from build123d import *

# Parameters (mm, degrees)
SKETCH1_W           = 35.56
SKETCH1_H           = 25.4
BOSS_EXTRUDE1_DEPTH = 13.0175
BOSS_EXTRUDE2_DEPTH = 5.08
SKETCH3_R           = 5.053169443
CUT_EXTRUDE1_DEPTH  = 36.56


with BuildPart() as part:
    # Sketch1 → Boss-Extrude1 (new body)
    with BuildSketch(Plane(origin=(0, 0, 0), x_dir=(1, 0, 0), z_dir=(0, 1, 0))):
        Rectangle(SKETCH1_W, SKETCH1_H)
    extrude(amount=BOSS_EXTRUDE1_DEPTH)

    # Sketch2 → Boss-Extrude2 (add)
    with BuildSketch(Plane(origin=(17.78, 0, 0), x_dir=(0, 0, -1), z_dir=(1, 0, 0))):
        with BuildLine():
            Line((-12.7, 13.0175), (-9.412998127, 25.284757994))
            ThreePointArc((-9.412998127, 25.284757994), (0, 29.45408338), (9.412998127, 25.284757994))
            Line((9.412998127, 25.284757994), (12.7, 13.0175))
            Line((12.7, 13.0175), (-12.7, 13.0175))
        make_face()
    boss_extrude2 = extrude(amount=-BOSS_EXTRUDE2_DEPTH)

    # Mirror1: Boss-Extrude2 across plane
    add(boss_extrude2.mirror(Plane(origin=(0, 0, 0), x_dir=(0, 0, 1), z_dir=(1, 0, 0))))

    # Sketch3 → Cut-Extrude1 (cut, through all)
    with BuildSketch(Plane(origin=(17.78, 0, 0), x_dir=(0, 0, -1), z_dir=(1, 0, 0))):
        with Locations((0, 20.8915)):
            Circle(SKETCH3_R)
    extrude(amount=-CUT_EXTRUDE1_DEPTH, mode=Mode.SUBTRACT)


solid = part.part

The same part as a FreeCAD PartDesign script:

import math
import FreeCAD as App
import Part
import Sketcher

V = App.Vector
Q = App.Units.Quantity

doc = App.newDocument("Part")
body = doc.addObject("PartDesign::Body", "Body")

# Sketch on XZ plane
sketch1 = body.newObject("Sketcher::SketchObject", "Sketch")
sketch1.AttachmentSupport = (doc.getObject("XZ_Plane"), [""])
sketch1.MapMode = "FlatFace"
sketch1.addGeometry([
    Part.LineSegment(V(-18, -13, 0), V(-18, 13, 0)),
    Part.LineSegment(V(-18, 13, 0), V(18, 13, 0)),
    Part.LineSegment(V(18, 13, 0), V(18, -13, 0)),
    Part.LineSegment(V(18, -13, 0), V(-18, -13, 0)),
], False)
sketch1.addConstraint([
    Sketcher.Constraint("Coincident", 0, 2, 1, 1),
    Sketcher.Constraint("Coincident", 1, 2, 2, 1),
    Sketcher.Constraint("Coincident", 2, 2, 3, 1),
    Sketcher.Constraint("Coincident", 3, 2, 0, 1),
    Sketcher.Constraint("Vertical", 0),
    Sketcher.Constraint("Horizontal", 1),
    Sketcher.Constraint("Vertical", 2),
    Sketcher.Constraint("Horizontal", 3),
    Sketcher.Constraint("Symmetric", 0, 2, 2, 2, -1, 1),
    Sketcher.Constraint("DistanceY", 0, 1, 0, 2, Q("1 in")),
    Sketcher.Constraint("DistanceX", 1, 1, 1, 2, Q("1.4 in")),
])
pad1 = body.newObject("PartDesign::Pad", "Pad")
pad1.Profile = sketch1
pad1.Length = Q("0.5125 in")
pad1.Reversed = True

# Sketch on YZ plane
sketch2 = body.newObject("Sketcher::SketchObject", "Sketch001")
sketch2.AttachmentSupport = (doc.getObject("YZ_Plane"), [""])
sketch2.MapMode = "FlatFace"
sketch2.AttachmentOffset = App.Placement(V(0, 0, 0.7 * 25.4), App.Rotation())
sketch2.addGeometry([
    Part.LineSegment(V(25, 9, 0), V(13, 13, 0)),
    Part.LineSegment(V(13, 13, 0), V(13, -13, 0)),
    Part.LineSegment(V(13, -13, 0), V(25, -9, 0)),
    Part.ArcOfCircle(Part.Circle(V(17, 0, 0), V(0, 0, 1), 13), math.radians(-48), math.radians(48)),
], False)
sketch2.addConstraint([
    Sketcher.Constraint("Coincident", 0, 2, 1, 1),
    Sketcher.Constraint("Coincident", 1, 2, 2, 1),
    Sketcher.Constraint("Coincident", 2, 2, 3, 1),
    Sketcher.Constraint("Coincident", 3, 2, 0, 1),
    Sketcher.Constraint("Vertical", 1),
    Sketcher.Constraint("Symmetric", 2, 2, 3, 2, -1),
    Sketcher.Constraint("Equal", 0, 2),
    Sketcher.Constraint("DistanceY", 1, 2, 1, 1, Q("1 in")),
    Sketcher.Constraint("Angle", 0, Q("165 deg")),
    Sketcher.Constraint("Distance", 0, Q("0.5 in")),
    Sketcher.Constraint("DistanceX", -1, 1, 0, 2, Q("0.5125 in")),
    Sketcher.Constraint("Radius", 3, 12.710427),
])
pad2 = body.newObject("PartDesign::Pad", "Pad001")
pad2.Profile = sketch2
pad2.Length = Q("0.2 in")
pad2.Reversed = True
doc.recompute()

mirrored = body.newObject("PartDesign::Mirrored", "Mirrored")
mirrored.Originals = [pad2]
mirrored.MirrorPlane = (doc.getObject("YZ_Plane"), [""])
body.Tip = mirrored

# Sketch on YZ plane
sketch3 = body.newObject("Sketcher::SketchObject", "Sketch002")
sketch3.AttachmentSupport = (doc.getObject("YZ_Plane"), [""])
sketch3.MapMode = "FlatFace"
sketch3.AttachmentOffset = App.Placement(V(0, 0, 0.7 * 25.4), App.Rotation())
sketch3.addGeometry(Part.Circle(V(21, 0, 0), V(0, 0, 1), 5), False)
sketch3.addConstraint([
    Sketcher.Constraint("PointOnObject", 0, 3, -1),
    Sketcher.Constraint("Diameter", 0, 10.106339),
    Sketcher.Constraint("DistanceX", -1, 1, 0, 3, Q("0.8225 in")),
])
pocket1 = body.newObject("PartDesign::Pocket", "Pocket")
pocket1.Profile = sketch3
pocket1.Type = "ThroughAll"

doc.recompute()
